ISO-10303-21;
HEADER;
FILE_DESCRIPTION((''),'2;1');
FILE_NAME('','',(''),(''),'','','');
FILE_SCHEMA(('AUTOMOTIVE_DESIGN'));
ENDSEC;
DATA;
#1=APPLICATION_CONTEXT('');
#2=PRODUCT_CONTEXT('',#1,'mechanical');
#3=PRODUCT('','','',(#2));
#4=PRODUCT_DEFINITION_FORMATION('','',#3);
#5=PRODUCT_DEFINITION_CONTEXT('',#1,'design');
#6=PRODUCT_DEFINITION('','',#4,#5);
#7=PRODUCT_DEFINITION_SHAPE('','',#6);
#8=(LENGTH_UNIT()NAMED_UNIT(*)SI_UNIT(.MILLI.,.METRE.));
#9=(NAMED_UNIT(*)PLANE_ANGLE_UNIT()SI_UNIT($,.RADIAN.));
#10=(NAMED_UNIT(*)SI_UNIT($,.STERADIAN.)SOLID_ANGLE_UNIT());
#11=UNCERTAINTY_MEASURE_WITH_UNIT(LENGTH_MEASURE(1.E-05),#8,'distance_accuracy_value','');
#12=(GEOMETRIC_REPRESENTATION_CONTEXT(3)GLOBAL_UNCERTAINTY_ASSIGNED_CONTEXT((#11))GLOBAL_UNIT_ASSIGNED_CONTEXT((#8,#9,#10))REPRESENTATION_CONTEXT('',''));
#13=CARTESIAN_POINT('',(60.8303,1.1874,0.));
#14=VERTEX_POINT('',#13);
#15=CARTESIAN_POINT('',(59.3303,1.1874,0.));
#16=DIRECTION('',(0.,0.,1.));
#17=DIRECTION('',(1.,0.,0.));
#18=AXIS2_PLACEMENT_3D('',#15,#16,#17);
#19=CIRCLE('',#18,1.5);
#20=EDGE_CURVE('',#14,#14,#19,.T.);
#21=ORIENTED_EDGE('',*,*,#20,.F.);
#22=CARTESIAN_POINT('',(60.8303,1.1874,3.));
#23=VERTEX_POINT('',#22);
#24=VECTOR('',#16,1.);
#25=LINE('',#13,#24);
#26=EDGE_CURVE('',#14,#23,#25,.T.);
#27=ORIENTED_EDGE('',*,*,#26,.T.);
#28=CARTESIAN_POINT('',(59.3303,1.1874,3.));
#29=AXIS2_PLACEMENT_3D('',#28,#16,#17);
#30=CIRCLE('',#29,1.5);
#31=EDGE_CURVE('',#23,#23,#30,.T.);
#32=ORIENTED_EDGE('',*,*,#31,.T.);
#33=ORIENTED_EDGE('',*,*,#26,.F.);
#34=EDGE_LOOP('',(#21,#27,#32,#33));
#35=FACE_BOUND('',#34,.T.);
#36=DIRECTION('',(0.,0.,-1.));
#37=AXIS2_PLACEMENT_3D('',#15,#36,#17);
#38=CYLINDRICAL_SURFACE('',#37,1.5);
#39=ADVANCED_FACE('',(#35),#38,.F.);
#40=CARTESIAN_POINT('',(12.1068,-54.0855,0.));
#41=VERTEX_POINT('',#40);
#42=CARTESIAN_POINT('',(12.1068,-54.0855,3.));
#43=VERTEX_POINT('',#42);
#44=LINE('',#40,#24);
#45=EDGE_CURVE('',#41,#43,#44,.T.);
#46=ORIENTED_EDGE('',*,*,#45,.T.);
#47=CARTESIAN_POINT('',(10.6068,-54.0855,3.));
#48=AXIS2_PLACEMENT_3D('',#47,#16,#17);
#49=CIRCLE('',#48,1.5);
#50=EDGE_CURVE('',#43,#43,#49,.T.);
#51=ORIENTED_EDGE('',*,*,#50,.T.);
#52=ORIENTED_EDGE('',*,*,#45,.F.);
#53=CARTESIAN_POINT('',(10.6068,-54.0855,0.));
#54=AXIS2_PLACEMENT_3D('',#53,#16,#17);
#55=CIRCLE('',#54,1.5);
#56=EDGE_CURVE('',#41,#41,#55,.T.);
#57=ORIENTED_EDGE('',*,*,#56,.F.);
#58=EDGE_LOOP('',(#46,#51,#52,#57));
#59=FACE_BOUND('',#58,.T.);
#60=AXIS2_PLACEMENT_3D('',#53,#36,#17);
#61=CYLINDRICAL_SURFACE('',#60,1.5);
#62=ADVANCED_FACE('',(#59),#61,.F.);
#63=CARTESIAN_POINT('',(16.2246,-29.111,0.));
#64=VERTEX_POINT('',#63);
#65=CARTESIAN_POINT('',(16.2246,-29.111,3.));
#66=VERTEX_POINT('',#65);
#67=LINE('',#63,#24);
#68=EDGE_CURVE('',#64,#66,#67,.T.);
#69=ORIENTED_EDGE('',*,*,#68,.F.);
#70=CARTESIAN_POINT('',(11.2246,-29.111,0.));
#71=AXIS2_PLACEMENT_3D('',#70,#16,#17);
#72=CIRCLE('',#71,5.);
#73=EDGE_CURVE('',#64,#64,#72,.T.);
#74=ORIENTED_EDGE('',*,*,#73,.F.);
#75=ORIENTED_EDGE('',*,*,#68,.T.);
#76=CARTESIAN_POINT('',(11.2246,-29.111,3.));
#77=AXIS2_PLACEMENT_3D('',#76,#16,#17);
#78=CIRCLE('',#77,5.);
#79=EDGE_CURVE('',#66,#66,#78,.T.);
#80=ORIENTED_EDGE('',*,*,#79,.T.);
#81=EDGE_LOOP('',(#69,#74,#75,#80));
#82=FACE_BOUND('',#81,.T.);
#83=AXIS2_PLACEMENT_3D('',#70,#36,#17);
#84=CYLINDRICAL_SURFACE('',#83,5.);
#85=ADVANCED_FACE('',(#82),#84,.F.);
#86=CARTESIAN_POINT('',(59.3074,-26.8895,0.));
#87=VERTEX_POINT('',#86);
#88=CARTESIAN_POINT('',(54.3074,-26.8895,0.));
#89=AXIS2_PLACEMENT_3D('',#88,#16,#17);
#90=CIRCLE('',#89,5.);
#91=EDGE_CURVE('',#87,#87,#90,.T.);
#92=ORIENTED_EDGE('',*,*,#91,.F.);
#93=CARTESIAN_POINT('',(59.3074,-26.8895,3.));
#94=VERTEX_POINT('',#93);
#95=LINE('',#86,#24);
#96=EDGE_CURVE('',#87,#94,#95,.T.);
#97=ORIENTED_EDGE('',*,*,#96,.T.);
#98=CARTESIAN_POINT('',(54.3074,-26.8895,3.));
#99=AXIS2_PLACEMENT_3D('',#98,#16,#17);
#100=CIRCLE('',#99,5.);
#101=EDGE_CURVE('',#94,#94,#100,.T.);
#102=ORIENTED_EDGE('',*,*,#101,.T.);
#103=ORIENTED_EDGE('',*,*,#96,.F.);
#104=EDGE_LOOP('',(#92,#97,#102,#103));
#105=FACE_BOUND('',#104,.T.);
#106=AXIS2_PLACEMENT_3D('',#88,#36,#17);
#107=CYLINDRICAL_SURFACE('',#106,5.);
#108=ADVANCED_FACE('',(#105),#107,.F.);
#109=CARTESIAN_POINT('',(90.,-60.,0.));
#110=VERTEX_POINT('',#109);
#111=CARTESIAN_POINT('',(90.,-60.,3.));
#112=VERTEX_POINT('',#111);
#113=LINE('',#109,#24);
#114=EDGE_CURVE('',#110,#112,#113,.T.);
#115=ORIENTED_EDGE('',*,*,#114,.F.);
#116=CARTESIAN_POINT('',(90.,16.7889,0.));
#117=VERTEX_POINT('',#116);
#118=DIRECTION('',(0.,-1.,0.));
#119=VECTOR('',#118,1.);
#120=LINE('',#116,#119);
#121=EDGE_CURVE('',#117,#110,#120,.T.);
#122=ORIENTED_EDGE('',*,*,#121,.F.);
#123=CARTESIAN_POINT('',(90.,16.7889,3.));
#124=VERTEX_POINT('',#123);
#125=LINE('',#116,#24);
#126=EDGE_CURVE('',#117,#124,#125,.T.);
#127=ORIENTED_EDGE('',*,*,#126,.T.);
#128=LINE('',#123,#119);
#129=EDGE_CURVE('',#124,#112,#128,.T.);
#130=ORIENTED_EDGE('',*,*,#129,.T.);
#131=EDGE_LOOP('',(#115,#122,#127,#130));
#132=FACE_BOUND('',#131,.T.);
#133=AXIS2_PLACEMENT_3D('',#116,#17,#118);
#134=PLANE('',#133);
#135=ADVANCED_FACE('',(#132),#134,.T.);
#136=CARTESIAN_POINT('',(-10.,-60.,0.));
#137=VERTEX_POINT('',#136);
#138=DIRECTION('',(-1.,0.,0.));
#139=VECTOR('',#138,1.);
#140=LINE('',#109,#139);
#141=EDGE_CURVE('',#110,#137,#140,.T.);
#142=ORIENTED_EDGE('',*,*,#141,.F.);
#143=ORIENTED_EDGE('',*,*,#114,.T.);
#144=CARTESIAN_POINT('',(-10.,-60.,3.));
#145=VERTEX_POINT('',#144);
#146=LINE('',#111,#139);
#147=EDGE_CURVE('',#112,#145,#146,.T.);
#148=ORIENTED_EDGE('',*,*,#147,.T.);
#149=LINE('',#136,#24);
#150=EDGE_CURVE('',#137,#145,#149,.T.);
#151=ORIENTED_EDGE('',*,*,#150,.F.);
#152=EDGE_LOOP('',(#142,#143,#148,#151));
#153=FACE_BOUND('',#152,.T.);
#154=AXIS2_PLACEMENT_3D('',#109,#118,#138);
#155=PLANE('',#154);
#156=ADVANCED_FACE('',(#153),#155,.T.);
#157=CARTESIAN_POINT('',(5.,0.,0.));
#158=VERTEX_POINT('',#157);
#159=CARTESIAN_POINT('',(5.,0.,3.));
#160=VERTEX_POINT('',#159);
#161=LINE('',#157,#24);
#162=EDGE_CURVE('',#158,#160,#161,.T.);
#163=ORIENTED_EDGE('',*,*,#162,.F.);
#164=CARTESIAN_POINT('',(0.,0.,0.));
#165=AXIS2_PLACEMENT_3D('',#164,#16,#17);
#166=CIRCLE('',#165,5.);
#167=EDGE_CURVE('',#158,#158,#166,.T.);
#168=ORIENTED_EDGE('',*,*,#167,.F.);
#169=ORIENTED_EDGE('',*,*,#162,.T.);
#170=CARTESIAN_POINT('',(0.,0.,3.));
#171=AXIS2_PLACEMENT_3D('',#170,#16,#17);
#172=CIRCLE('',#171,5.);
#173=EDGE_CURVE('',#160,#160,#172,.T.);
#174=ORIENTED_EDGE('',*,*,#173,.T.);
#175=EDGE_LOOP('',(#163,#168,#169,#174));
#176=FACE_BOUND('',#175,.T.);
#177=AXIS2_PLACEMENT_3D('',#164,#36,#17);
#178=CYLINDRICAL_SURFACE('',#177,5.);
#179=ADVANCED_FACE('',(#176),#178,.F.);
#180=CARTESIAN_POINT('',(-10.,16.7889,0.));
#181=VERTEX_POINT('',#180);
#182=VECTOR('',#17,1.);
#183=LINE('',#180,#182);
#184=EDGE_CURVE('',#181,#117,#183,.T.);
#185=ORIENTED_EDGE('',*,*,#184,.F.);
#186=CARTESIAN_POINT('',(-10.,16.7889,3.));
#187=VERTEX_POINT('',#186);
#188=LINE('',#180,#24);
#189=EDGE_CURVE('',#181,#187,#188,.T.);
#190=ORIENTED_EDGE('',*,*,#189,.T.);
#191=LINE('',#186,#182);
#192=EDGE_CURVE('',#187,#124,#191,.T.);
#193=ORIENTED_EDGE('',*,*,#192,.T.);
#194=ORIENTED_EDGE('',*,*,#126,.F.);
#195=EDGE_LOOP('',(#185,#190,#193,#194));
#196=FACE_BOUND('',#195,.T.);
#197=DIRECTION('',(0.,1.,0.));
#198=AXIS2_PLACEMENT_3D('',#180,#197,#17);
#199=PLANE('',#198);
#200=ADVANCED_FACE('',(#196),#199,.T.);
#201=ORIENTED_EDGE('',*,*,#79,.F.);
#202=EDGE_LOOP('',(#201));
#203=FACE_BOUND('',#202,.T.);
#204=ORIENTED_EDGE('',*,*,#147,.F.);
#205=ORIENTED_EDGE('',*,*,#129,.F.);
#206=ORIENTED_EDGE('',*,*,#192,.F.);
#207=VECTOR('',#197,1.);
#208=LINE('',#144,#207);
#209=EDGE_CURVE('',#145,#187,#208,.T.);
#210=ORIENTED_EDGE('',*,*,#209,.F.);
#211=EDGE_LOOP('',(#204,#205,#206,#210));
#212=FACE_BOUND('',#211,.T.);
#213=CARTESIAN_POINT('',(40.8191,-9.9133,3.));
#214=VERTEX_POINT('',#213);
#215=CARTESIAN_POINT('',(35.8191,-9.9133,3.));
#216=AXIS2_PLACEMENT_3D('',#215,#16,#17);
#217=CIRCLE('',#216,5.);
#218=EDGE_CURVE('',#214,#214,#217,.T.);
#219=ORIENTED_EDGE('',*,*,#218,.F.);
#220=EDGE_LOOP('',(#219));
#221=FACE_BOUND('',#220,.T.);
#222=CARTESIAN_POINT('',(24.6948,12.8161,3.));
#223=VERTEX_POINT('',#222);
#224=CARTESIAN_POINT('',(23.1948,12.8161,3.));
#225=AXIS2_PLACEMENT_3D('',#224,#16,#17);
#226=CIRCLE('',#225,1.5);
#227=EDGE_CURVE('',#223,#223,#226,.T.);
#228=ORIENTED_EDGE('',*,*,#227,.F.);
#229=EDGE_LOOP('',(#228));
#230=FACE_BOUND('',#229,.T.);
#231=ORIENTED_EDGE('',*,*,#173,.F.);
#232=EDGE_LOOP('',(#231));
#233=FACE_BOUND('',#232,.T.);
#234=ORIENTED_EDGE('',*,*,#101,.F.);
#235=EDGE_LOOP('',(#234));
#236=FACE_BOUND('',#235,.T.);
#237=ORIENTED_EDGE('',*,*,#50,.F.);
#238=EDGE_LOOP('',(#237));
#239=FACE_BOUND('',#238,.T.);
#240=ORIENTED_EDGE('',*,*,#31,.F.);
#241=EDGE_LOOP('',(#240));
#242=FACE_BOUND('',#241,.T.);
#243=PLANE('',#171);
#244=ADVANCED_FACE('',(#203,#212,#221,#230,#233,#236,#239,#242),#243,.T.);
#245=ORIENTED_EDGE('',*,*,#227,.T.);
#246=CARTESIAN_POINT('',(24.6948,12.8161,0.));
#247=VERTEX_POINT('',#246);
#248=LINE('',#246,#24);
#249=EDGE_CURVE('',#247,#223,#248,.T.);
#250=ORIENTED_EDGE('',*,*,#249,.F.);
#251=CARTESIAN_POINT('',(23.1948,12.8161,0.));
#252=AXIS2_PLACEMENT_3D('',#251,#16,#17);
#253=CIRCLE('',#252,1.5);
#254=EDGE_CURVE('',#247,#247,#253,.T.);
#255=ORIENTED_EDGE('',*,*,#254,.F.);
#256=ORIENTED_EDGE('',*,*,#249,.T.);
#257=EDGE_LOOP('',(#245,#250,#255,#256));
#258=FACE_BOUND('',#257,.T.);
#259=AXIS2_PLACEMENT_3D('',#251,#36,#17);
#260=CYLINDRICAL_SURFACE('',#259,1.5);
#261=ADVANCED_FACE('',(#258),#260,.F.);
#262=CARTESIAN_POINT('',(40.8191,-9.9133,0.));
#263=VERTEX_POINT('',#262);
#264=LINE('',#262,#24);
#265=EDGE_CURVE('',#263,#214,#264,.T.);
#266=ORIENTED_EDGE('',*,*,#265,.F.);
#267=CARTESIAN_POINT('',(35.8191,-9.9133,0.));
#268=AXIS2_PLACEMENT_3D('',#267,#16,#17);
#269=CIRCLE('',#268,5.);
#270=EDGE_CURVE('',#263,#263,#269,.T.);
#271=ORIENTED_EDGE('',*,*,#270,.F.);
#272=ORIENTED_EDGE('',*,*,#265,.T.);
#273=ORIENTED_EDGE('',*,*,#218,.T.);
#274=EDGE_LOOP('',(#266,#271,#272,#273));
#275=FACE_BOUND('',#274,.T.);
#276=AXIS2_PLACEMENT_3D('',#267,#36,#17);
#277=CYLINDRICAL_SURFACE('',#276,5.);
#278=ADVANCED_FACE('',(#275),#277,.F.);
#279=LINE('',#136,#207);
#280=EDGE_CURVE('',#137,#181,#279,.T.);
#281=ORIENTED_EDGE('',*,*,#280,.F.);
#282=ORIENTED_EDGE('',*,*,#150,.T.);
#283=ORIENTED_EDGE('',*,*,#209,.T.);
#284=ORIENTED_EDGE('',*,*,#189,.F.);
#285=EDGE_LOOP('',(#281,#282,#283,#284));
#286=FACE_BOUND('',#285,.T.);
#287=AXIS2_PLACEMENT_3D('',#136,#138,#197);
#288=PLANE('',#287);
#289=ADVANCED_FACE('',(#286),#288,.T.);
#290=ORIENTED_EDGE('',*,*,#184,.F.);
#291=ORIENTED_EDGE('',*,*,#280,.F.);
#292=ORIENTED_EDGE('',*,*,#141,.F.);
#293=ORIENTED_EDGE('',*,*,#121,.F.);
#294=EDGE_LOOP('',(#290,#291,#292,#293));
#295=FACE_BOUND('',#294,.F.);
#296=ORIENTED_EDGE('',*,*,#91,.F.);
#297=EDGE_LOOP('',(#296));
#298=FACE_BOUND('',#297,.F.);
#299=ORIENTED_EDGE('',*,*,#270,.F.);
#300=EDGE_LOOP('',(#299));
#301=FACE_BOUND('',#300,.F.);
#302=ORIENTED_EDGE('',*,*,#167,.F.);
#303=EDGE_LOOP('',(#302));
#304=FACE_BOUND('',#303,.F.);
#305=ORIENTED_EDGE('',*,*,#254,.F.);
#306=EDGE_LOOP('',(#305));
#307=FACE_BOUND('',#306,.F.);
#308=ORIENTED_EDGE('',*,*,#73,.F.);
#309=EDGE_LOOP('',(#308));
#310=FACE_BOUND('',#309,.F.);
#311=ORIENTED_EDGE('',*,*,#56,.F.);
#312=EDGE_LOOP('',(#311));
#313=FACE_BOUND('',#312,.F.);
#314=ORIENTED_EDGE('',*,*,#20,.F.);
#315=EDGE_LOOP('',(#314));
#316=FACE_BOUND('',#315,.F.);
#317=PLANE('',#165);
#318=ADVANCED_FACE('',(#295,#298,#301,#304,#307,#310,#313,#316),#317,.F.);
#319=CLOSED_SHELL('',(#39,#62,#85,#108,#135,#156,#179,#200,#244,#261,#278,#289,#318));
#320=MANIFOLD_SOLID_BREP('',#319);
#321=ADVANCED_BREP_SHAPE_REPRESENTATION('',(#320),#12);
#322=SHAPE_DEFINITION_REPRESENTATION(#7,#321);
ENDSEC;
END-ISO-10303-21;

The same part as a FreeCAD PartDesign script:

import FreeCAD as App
import Part
import Sketcher
Q = App.Units.Quantity


def add_polygon(sketch, points):
    """Adds a closed chain of lines whose ends are joined by coincident constraints."""
    first, n = sketch.GeometryCount, len(points)
    for a, b in zip(points, points[1:] + points[:1]):
        sketch.addGeometry(Part.LineSegment(App.Vector(*a, 0), App.Vector(*b, 0)), False)
    for i in range(n):
        sketch.addConstraint(Sketcher.Constraint("Coincident", first + i, 2, first + (i + 1) % n, 1))

doc = App.newDocument("Part")
body = doc.addObject("PartDesign::Body", "Body")

sketch1 = doc.addObject("Sketcher::SketchObject", "Sketch")
body.addObject(sketch1)
sketch1.AttachmentSupport = (doc.XY_Plane, [""])
sketch1.MapMode = "FlatFace"
add_polygon(sketch1, [(90, 16.8), (-10, 16.8), (-10, -60), (90, -60)])
sketch1.addGeometry(Part.Circle(App.Vector(10.6, -54.1, 0), App.Vector(0, 0, 1), 1.5), False)
sketch1.addGeometry(Part.Circle(App.Vector(11.2, -29.1, 0), App.Vector(0, 0, 1), 5), False)
sketch1.addGeometry(Part.Circle(App.Vector(54.3, -26.9, 0), App.Vector(0, 0, 1), 5), False)
sketch1.addGeometry(Part.Circle(App.Vector(35.8, -9.9, 0), App.Vector(0, 0, 1), 5), False)
sketch1.addGeometry(Part.Circle(App.Vector(0, 0, 0), App.Vector(0, 0, 1), 5), False)
sketch1.addGeometry(Part.Circle(App.Vector(23.2, 12.8, 0), App.Vector(0, 0, 1), 1.5), False)
sketch1.addGeometry(Part.Circle(App.Vector(59.3, 1.2, 0), App.Vector(0, 0, 1), 1.5), False)
sketch1.addConstraint(Sketcher.Constraint("Horizontal", 0))
sketch1.addConstraint(Sketcher.Constraint("Vertical", 1))
sketch1.addConstraint(Sketcher.Constraint("Horizontal", 2))
sketch1.addConstraint(Sketcher.Constraint("Vertical", 3))
sketch1.addConstraint(Sketcher.Constraint("Coincident", 8, 3, -1, 1))
sketch1.addConstraint(Sketcher.Constraint("Equal", 5, 6))
sketch1.addConstraint(Sketcher.Constraint("Equal", 6, 7))
sketch1.addConstraint(Sketcher.Constraint("Equal", 7, 8))
sketch1.addConstraint(Sketcher.Constraint("Equal", 4, 9))
sketch1.addConstraint(Sketcher.Constraint("Equal", 9, 10))
sketch1.addConstraint(Sketcher.Constraint("Diameter", 5, Q("0.3937 in")))
sketch1.addConstraint(Sketcher.Constraint("Diameter", 4, Q("0.1181 in")))
sketch1.addConstraint(Sketcher.Constraint("DistanceX", 0, 2, -1, 1, Q("0.3937 in")))
sketch1.addConstraint(Sketcher.Constraint("DistanceX", 0, 2, 0, 1, Q("3.937 in")))
sketch1.addConstraint(Sketcher.Constraint("DistanceY", 1, 2, 1, 1, Q("3.023189 in")))
sketch1.addConstraint(Sketcher.Constraint("DistanceX", -1, 1, 4, 3, Q("0.4176 in")))
sketch1.addConstraint(Sketcher.Constraint("DistanceY", 5, 3, -1, 1, Q("1.1461 in")))
sketch1.addConstraint(Sketcher.Constraint("DistanceX", -1, 1, 7, 3, Q("1.4102 in")))
sketch1.addConstraint(Sketcher.Constraint("DistanceY", 1, 2, -1, 1, Q("2.3622 in")))
sketch1.addConstraint(Sketcher.Constraint("DistanceX", 4, 3, 6, 3, Q("1.7205 in")))
sketch1.addConstraint(Sketcher.Constraint("DistanceY", 4, 3, 6, 3, Q("1.0707 in")))
sketch1.addConstraint(Sketcher.Constraint("DistanceX", 9, 3, 6, 3, Q("1.2249 in")))
sketch1.addConstraint(Sketcher.Constraint("DistanceY", 6, 3, 10, 3, Q("1.1054 in")))
sketch1.addConstraint(Sketcher.Constraint("DistanceY", 9, 3, 0, 2, Q("0.1564 in")))
sketch1.addConstraint(Sketcher.Constraint("DistanceX", 5, 3, 2, 2, Q("3.1014 in")))
sketch1.addConstraint(Sketcher.Constraint("DistanceY", 4, 3, -1, 1, 54.0855))
sketch1.addConstraint(Sketcher.Constraint("DistanceY", 7, 3, -1, 1, 9.9133))
sketch1.addConstraint(Sketcher.Constraint("DistanceX", -1, 1, 10, 3, 59.3303))
pad1 = doc.addObject("PartDesign::Pad", "Pad")
body.addObject(pad1)
pad1.Profile = sketch1
pad1.Length = Q("0.1181102 in")

doc.recompute()
